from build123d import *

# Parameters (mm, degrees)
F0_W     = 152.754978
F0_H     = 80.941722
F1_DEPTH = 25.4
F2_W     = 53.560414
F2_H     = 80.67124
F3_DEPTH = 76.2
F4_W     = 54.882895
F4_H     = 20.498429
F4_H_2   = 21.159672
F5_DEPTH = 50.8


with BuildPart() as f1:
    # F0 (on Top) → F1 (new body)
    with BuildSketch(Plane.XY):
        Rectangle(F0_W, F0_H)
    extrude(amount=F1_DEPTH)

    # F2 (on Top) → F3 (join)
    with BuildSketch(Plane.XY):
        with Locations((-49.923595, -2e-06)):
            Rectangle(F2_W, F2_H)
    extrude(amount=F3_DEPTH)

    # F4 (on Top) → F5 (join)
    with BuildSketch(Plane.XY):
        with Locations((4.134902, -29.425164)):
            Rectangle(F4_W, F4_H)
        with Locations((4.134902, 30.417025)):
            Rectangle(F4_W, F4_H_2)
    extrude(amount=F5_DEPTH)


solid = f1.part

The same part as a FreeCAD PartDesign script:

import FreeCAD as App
import Part
import Sketcher
from FreeCAD import Vector
Q = App.Units.Quantity


def add_polygon(sketch, points):
    """Adds a closed chain of lines whose ends are joined by coincident constraints."""
    first, n = sketch.GeometryCount, len(points)
    for a, b in zip(points, points[1:] + points[:1]):
        sketch.addGeometry(Part.LineSegment(App.Vector(*a, 0), App.Vector(*b, 0)), False)
    for i in range(n):
        sketch.addConstraint(Sketcher.Constraint("Coincident", first + i, 2, first + (i + 1) % n, 1))

doc = App.newDocument("Part")
body = doc.addObject("PartDesign::Body", "Body")

# Sketch on XY plane
sketch1 = body.newObject("Sketcher::SketchObject", "Sketch")
sketch1.AttachmentSupport = (doc.getObject("XY_Plane"), [""])
sketch1.MapMode = "FlatFace"
add_polygon(sketch1, [(-76, 40), (-76, -40), (76, -40), (76, 40)])  # lines 0-3
sketch1.addConstraint([
    Sketcher.Constraint("Vertical", 0),
    Sketcher.Constraint("Horizontal", 1),
    Sketcher.Constraint("Vertical", 2),
    Sketcher.Constraint("Horizontal", 3),
    Sketcher.Constraint("Symmetric", 0, 2, 2, 2, -1, 1),
    Sketcher.Constraint("DistanceX", 1, 1, 1, 2, 152.754978),
    Sketcher.Constraint("DistanceY", 0, 2, 0, 1, 80.941722),
])
pad1 = body.newObject("PartDesign::Pad", "Pad")
pad1.Profile = sketch1
pad1.Length = Q("1 in")

# Sketch on XY plane
sketch2 = body.newObject("Sketcher::SketchObject", "Sketch001")
sketch2.AttachmentSupport = (doc.getObject("XY_Plane"), [""])
sketch2.MapMode = "FlatFace"
add_polygon(sketch2, [(-77, 40), (-77, -40), (-23, -40), (-23, 40)])  # lines 0-3
sketch2.addConstraint([
    Sketcher.Constraint("Vertical", 0),
    Sketcher.Constraint("Horizontal", 1),
    Sketcher.Constraint("Vertical", 2),
    Sketcher.Constraint("Horizontal", 3),
    Sketcher.Constraint("DistanceY", 0, 2, 0, 1, 80.67124),
    Sketcher.Constraint("DistanceX", 0, 2, -1, 1, 76.703802),
    Sketcher.Constraint("DistanceX", 1, 1, 1, 2, 53.560414),
    Sketcher.Constraint("DistanceY", 0, 2, -1, 1, 40.335622),
])
pad2 = body.newObject("PartDesign::Pad", "Pad001")
pad2.Profile = sketch2
pad2.Length = Q("3 in")

# Sketch on XY plane
sketch3 = body.newObject("Sketcher::SketchObject", "Sketch002")
sketch3.AttachmentSupport = (doc.getObject("XY_Plane"), [""])
sketch3.MapMode = "FlatFace"
add_polygon(sketch3, [(-23, -19), (-23, -40), (32, -40), (32, -19)])  # lines 0-3
add_polygon(sketch3, [(-23, 41), (-23, 20), (32, 20), (32, 41)])  # lines 4-7
sketch3.addConstraint([
    Sketcher.Constraint("Vertical", 0),
    Sketcher.Constraint("Horizontal", 1),
    Sketcher.Constraint("Vertical", 2),
    Sketcher.Constraint("Horizontal", 3),
    Sketcher.Constraint("Vertical", 4),
    Sketcher.Constraint("Horizontal", 5),
    Sketcher.Constraint("Vertical", 6),
    Sketcher.Constraint("Horizontal", 7),
    Sketcher.Constraint("Vertical", 3, 2, 4, 2),
    Sketcher.Constraint("Vertical", 2, 2, 5, 2),
    Sketcher.Constraint("DistanceY", 0, 2, 0, 1, 20.498429),
    Sketcher.Constraint("DistanceX", 1, 1, 1, 2, 54.882895),
    Sketcher.Constraint("DistanceY", 4, 2, 4, 1, 21.159672),
    Sketcher.Constraint("DistanceY", 0, 2, -1, 1, 39.674379),
    Sketcher.Constraint("DistanceX", -1, 1, 1, 2, 31.576349),
    Sketcher.Constraint("DistanceY", -1, 1, 4, 2, 19.837189),
])
pad3 = body.newObject("PartDesign::Pad", "Pad002")
pad3.Profile = sketch3
pad3.Length = Q("2 in")

doc.recompute()
